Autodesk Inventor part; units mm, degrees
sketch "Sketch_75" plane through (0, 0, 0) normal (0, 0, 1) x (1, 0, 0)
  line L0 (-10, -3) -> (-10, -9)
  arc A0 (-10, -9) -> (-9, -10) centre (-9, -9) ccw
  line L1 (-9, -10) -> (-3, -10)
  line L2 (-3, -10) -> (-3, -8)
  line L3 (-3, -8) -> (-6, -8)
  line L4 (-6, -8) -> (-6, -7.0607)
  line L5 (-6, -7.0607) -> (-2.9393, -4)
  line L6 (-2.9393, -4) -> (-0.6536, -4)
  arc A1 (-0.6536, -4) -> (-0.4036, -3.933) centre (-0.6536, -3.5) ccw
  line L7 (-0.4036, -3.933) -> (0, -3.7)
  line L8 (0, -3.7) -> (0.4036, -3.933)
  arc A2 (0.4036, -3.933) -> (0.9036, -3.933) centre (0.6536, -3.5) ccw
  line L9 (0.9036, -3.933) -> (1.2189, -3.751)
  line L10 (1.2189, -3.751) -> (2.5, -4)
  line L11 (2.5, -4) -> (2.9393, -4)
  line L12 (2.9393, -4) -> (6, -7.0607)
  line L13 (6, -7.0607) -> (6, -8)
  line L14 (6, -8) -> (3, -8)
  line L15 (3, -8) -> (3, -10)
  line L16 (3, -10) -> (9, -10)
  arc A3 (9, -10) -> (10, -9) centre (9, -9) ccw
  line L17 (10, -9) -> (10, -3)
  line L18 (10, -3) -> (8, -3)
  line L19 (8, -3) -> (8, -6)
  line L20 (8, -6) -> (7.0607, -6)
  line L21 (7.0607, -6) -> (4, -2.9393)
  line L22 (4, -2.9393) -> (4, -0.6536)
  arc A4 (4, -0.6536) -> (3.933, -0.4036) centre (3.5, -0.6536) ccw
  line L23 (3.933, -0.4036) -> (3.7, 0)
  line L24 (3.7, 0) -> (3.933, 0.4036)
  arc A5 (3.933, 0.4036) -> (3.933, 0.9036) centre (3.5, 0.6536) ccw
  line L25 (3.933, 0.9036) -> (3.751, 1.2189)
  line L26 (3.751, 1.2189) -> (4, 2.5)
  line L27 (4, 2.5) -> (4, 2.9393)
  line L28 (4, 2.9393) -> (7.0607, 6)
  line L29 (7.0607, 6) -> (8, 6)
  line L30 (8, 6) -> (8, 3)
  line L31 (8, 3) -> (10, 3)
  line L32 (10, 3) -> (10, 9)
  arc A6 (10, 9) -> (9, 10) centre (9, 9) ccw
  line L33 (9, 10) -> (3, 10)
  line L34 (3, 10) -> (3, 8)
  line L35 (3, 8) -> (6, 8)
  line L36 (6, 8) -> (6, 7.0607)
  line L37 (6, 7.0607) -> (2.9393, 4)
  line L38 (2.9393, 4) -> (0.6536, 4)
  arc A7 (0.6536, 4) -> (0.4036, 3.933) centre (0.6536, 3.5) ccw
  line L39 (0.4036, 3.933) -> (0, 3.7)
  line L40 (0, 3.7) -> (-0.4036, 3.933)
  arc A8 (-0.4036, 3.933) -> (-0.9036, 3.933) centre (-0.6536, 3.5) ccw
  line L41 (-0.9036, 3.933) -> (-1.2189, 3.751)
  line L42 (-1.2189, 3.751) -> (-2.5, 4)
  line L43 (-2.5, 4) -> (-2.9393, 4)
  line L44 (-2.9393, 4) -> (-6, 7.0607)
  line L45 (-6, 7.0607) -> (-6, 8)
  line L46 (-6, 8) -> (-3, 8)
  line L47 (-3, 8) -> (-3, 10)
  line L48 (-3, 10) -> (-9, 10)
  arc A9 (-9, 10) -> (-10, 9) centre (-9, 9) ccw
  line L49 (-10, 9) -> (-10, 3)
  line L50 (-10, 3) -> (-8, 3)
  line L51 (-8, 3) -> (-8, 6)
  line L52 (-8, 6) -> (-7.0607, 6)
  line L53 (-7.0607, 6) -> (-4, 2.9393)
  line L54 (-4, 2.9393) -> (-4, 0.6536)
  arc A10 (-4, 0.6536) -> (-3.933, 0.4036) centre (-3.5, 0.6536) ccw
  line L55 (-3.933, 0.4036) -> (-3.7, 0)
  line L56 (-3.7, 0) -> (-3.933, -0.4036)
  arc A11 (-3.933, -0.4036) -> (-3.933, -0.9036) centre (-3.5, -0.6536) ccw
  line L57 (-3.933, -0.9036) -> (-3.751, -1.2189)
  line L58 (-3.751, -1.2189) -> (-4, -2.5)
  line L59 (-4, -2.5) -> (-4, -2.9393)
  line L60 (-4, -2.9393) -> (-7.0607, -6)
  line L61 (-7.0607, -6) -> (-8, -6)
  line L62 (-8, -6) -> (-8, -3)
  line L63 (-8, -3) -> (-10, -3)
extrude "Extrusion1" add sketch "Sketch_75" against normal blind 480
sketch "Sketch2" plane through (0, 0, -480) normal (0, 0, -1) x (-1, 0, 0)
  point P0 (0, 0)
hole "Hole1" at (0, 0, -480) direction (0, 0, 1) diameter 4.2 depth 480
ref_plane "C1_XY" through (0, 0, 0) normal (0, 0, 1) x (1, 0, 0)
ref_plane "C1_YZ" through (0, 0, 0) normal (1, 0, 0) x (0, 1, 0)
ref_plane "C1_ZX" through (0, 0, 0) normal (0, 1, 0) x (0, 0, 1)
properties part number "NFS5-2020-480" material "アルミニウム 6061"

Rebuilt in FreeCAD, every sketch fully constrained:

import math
import FreeCAD as App
import Part
import Sketcher
Q = App.Units.Quantity

doc = App.newDocument("Part")
body = doc.addObject("PartDesign::Body", "Body")

sketch1 = body.newObject("Sketcher::SketchObject", "Sketch")
sketch1.AttachmentSupport = (doc.getObject("XY_Plane"), [""])
sketch1.MapMode = "FlatFace"
sketch1.addGeometry([
    Part.LineSegment(App.Vector(-8, -3, 0), App.Vector(-10, -3, 0)),
    Part.LineSegment(App.Vector(-10, -3, 0), App.Vector(-10, -9, 0)),
    Part.ArcOfCircle(Part.Circle(App.Vector(-9, -9, 0), App.Vector(0, 0, 1), 1), math.radians(180), math.radians(270)),
    Part.LineSegment(App.Vector(-9, -10, 0), App.Vector(-3, -10, 0)),
    Part.LineSegment(App.Vector(-3, -10, 0), App.Vector(-3, -8, 0)),
    Part.LineSegment(App.Vector(-3, -8, 0), App.Vector(-6, -8, 0)),
    Part.LineSegment(App.Vector(-6, -8, 0), App.Vector(-6, -7.06, 0)),
    Part.LineSegment(App.Vector(-6, -7.06, 0), App.Vector(-2.94, -4, 0)),
    Part.LineSegment(App.Vector(-2.94, -4, 0), App.Vector(-0.65, -4, 0)),
    Part.ArcOfCircle(Part.Circle(App.Vector(-0.65, -3.5, 0), App.Vector(0, 0, 1), 0.5), math.radians(-90), math.radians(-60)),
    Part.LineSegment(App.Vector(-0.4, -3.93, 0), App.Vector(0, -3.7, 0)),
    Part.LineSegment(App.Vector(0, -3.7, 0), App.Vector(0.4, -3.93, 0)),
    Part.ArcOfCircle(Part.Circle(App.Vector(0.65, -3.5, 0), App.Vector(0, 0, 1), 0.5), math.radians(-120), math.radians(-60)),
    Part.LineSegment(App.Vector(0.9, -3.93, 0), App.Vector(1.22, -3.75, 0)),
    Part.LineSegment(App.Vector(1.22, -3.75, 0), App.Vector(2.5, -4, 0)),
    Part.LineSegment(App.Vector(2.5, -4, 0), App.Vector(2.94, -4, 0)),
    Part.LineSegment(App.Vector(2.94, -4, 0), App.Vector(6, -7.06, 0)),
    Part.LineSegment(App.Vector(6, -7.06, 0), App.Vector(6, -8, 0)),
    Part.LineSegment(App.Vector(6, -8, 0), App.Vector(3, -8, 0)),
    Part.LineSegment(App.Vector(3, -8, 0), App.Vector(3, -10, 0)),
    Part.LineSegment(App.Vector(3, -10, 0), App.Vector(9, -10, 0)),
    Part.ArcOfCircle(Part.Circle(App.Vector(9, -9, 0), App.Vector(0, 0, 1), 1), math.radians(-90), math.radians(0)),
    Part.LineSegment(App.Vector(10, -9, 0), App.Vector(10, -3, 0)),
    Part.LineSegment(App.Vector(10, -3, 0), App.Vector(8, -3, 0)),
    Part.LineSegment(App.Vector(8, -3, 0), App.Vector(8, -6, 0)),
    Part.LineSegment(App.Vector(8, -6, 0), App.Vector(7.06, -6, 0)),
    Part.LineSegment(App.Vector(7.06, -6, 0), App.Vector(4, -2.94, 0)),
    Part.LineSegment(App.Vector(4, -2.94, 0), App.Vector(4, -0.65, 0)),
    Part.ArcOfCircle(Part.Circle(App.Vector(3.5, -0.65, 0), App.Vector(0, 0, 1), 0.5), math.radians(0), math.radians(30)),
    Part.LineSegment(App.Vector(3.93, -0.4, 0), App.Vector(3.7, 0, 0)),
    Part.LineSegment(App.Vector(3.7, 0, 0), App.Vector(3.93, 0.4, 0)),
    Part.ArcOfCircle(Part.Circle(App.Vector(3.5, 0.65, 0), App.Vector(0, 0, 1), 0.5), math.radians(-30), math.radians(30)),
    Part.LineSegment(App.Vector(3.93, 0.9, 0), App.Vector(3.75, 1.22, 0)),
    Part.LineSegment(App.Vector(3.75, 1.22, 0), App.Vector(4, 2.5, 0)),
    Part.LineSegment(App.Vector(4, 2.5, 0), App.Vector(4, 2.94, 0)),
    Part.LineSegment(App.Vector(4, 2.94, 0), App.Vector(7.06, 6, 0)),
    Part.LineSegment(App.Vector(7.06, 6, 0), App.Vector(8, 6, 0)),
    Part.LineSegment(App.Vector(8, 6, 0), App.Vector(8, 3, 0)),
    Part.LineSegment(App.Vector(8, 3, 0), App.Vector(10, 3, 0)),
    Part.LineSegment(App.Vector(10, 3, 0), App.Vector(10, 9, 0)),
    Part.ArcOfCircle(Part.Circle(App.Vector(9, 9, 0), App.Vector(0, 0, 1), 1), math.radians(0), math.radians(90)),
    Part.LineSegment(App.Vector(9, 10, 0), App.Vector(3, 10, 0)),
    Part.LineSegment(App.Vector(3, 10, 0), App.Vector(3, 8, 0)),
    Part.LineSegment(App.Vector(3, 8, 0), App.Vector(6, 8, 0)),
    Part.LineSegment(App.Vector(6, 8, 0), App.Vector(6, 7.06, 0)),
    Part.LineSegment(App.Vector(6, 7.06, 0), App.Vector(2.94, 4, 0)),
    Part.LineSegment(App.Vector(2.94, 4, 0), App.Vector(0.65, 4, 0)),
    Part.ArcOfCircle(Part.Circle(App.Vector(0.65, 3.5, 0), App.Vector(0, 0, 1), 0.5), math.radians(90), math.radians(120)),
    Part.LineSegment(App.Vector(0.4, 3.93, 0), App.Vector(0, 3.7, 0)),
    Part.LineSegment(App.Vector(0, 3.7, 0), App.Vector(-0.4, 3.93, 0)),
    Part.ArcOfCircle(Part.Circle(App.Vector(-0.65, 3.5, 0), App.Vector(0, 0, 1), 0.5), math.radians(60), math.radians(120)),
    Part.LineSegment(App.Vector(-0.9, 3.93, 0), App.Vector(-1.22, 3.75, 0)),
    Part.LineSegment(App.Vector(-1.22, 3.75, 0), App.Vector(-2.5, 4, 0)),
    Part.LineSegment(App.Vector(-2.5, 4, 0), App.Vector(-2.94, 4, 0)),
    Part.LineSegment(App.Vector(-2.94, 4, 0), App.Vector(-6, 7.06, 0)),
    Part.LineSegment(App.Vector(-6, 7.06, 0), App.Vector(-6, 8, 0)),
    Part.LineSegment(App.Vector(-6, 8, 0), App.Vector(-3, 8, 0)),
    Part.LineSegment(App.Vector(-3, 8, 0), App.Vector(-3, 10, 0)),
    Part.LineSegment(App.Vector(-3, 10, 0), App.Vector(-9, 10, 0)),
    Part.ArcOfCircle(Part.Circle(App.Vector(-9, 9, 0), App.Vector(0, 0, 1), 1), math.radians(90), math.radians(180)),
    Part.LineSegment(App.Vector(-10, 9, 0), App.Vector(-10, 3, 0)),
    Part.LineSegment(App.Vector(-10, 3, 0), App.Vector(-8, 3, 0)),
    Part.LineSegment(App.Vector(-8, 3, 0), App.Vector(-8, 6, 0)),
    Part.LineSegment(App.Vector(-8, 6, 0), App.Vector(-7.06, 6, 0)),
    Part.LineSegment(App.Vector(-7.06, 6, 0), App.Vector(-4, 2.94, 0)),
    Part.LineSegment(App.Vector(-4, 2.94, 0), App.Vector(-4, 0.65, 0)),
    Part.ArcOfCircle(Part.Circle(App.Vector(-3.5, 0.65, 0), App.Vector(0, 0, 1), 0.5), math.radians(180), math.radians(210)),
    Part.LineSegment(App.Vector(-3.93, 0.4, 0), App.Vector(-3.7, 0, 0)),
    Part.LineSegment(App.Vector(-3.7, 0, 0), App.Vector(-3.93, -0.4, 0)),
    Part.ArcOfCircle(Part.Circle(App.Vector(-3.5, -0.65, 0), App.Vector(0, 0, 1), 0.5), math.radians(150), math.radians(210)),
    Part.LineSegment(App.Vector(-3.93, -0.9, 0), App.Vector(-3.75, -1.22, 0)),
    Part.LineSegment(App.Vector(-3.75, -1.22, 0), App.Vector(-4, -2.5, 0)),
    Part.LineSegment(App.Vector(-4, -2.5, 0), App.Vector(-4, -2.94, 0)),
    Part.LineSegment(App.Vector(-4, -2.94, 0), App.Vector(-7.06, -6, 0)),
    Part.LineSegment(App.Vector(-7.06, -6, 0), App.Vector(-8, -6, 0)),
    Part.LineSegment(App.Vector(-8, -6, 0), App.Vector(-8, -3, 0)),
], False)
sketch1.addConstraint([
    Sketcher.Constraint("Coincident", 0, 2, 1, 1),
    Sketcher.Constraint("Tangent", 1, 2, 2, 1),
    Sketcher.Constraint("Tangent", 2, 2, 3, 1),
    Sketcher.Constraint("Coincident", 3, 2, 4, 1),
    Sketcher.Constraint("Coincident", 4, 2, 5, 1),
    Sketcher.Constraint("Coincident", 5, 2, 6, 1),
    Sketcher.Constraint("Coincident", 6, 2, 7, 1),
    Sketcher.Constraint("Coincident", 7, 2, 8, 1),
    Sketcher.Constraint("Tangent", 8, 2, 9, 1),
    Sketcher.Constraint("Tangent", 9, 2, 10, 1),
    Sketcher.Constraint("Coincident", 10, 2, 11, 1),
    Sketcher.Constraint("Tangent", 11, 2, 12, 1),
    Sketcher.Constraint("Tangent", 12, 2, 13, 1),
    Sketcher.Constraint("Coincident", 13, 2, 14, 1),
    Sketcher.Constraint("Coincident", 14, 2, 15, 1),
    Sketcher.Constraint("Coincident", 15, 2, 16, 1),
    Sketcher.Constraint("Coincident", 16, 2, 17, 1),
    Sketcher.Constraint("Coincident", 17, 2, 18, 1),
    Sketcher.Constraint("Coincident", 18, 2, 19, 1),
    Sketcher.Constraint("Coincident", 19, 2, 20, 1),
    Sketcher.Constraint("Tangent", 20, 2, 21, 1),
    Sketcher.Constraint("Tangent", 21, 2, 22, 1),
    Sketcher.Constraint("Coincident", 22, 2, 23, 1),
    Sketcher.Constraint("Coincident", 23, 2, 24, 1),
    Sketcher.Constraint("Coincident", 24, 2, 25, 1),
    Sketcher.Constraint("Coincident", 25, 2, 26, 1),
    Sketcher.Constraint("Coincident", 26, 2, 27, 1),
    Sketcher.Constraint("Tangent", 27, 2, 28, 1),
    Sketcher.Constraint("Tangent", 28, 2, 29, 1),
    Sketcher.Constraint("Coincident", 29, 2, 30, 1),
    Sketcher.Constraint("Tangent", 30, 2, 31, 1),
    Sketcher.Constraint("Tangent", 31, 2, 32, 1),
    Sketcher.Constraint("Coincident", 32, 2, 33, 1),
    Sketcher.Constraint("Coincident", 33, 2, 34, 1),
    Sketcher.Constraint("Coincident", 34, 2, 35, 1),
    Sketcher.Constraint("Coincident", 35, 2, 36, 1),
    Sketcher.Constraint("Coincident", 36, 2, 37, 1),
    Sketcher.Constraint("Coincident", 37, 2, 38, 1),
    Sketcher.Constraint("Coincident", 38, 2, 39, 1),
    Sketcher.Constraint("Tangent", 39, 2, 40, 1),
    Sketcher.Constraint("Tangent", 40, 2, 41, 1),
    Sketcher.Constraint("Coincident", 41, 2, 42, 1),
    Sketcher.Constraint("Coincident", 42, 2, 43, 1),
    Sketcher.Constraint("Coincident", 43, 2, 44, 1),
    Sketcher.Constraint("Coincident", 44, 2, 45, 1),
    Sketcher.Constraint("Coincident", 45, 2, 46, 1),
    Sketcher.Constraint("Tangent", 46, 2, 47, 1),
    Sketcher.Constraint("Tangent", 47, 2, 48, 1),
    Sketcher.Constraint("Coincident", 48, 2, 49, 1),
    Sketcher.Constraint("Tangent", 49, 2, 50, 1),
    Sketcher.Constraint("Tangent", 50, 2, 51, 1),
    Sketcher.Constraint("Coincident", 51, 2, 52, 1),
    Sketcher.Constraint("Coincident", 52, 2, 53, 1),
    Sketcher.Constraint("Coincident", 53, 2, 54, 1),
    Sketcher.Constraint("Coincident", 54, 2, 55, 1),
    Sketcher.Constraint("Coincident", 55, 2, 56, 1),
    Sketcher.Constraint("Coincident", 56, 2, 57, 1),
    Sketcher.Constraint("Coincident", 57, 2, 58, 1),
    Sketcher.Constraint("Tangent", 58, 2, 59, 1),
    Sketcher.Constraint("Tangent", 59, 2, 60, 1),
    Sketcher.Constraint("Coincident", 60, 2, 61, 1),
    Sketcher.Constraint("Coincident", 61, 2, 62, 1),
    Sketcher.Constraint("Coincident", 62, 2, 63, 1),
    Sketcher.Constraint("Coincident", 63, 2, 64, 1),
    Sketcher.Constraint("Coincident", 64, 2, 65, 1),
    Sketcher.Constraint("Tangent", 65, 2, 66, 1),
    Sketcher.Constraint("Tangent", 66, 2, 67, 1),
    Sketcher.Constraint("Coincident", 67, 2, 68, 1),
    Sketcher.Constraint("Tangent", 68, 2, 69, 1),
    Sketcher.Constraint("Tangent", 69, 2, 70, 1),
    Sketcher.Constraint("Coincident", 70, 2, 71, 1),
    Sketcher.Constraint("Coincident", 71, 2, 72, 1),
    Sketcher.Constraint("Coincident", 72, 2, 73, 1),
    Sketcher.Constraint("Coincident", 73, 2, 74, 1),
    Sketcher.Constraint("Coincident", 74, 2, 75, 1),
    Sketcher.Constraint("Coincident", 75, 2, 0, 1),
    Sketcher.Constraint("Horizontal", 0),
    Sketcher.Constraint("Vertical", 1),
    Sketcher.Constraint("Horizontal", 3),
    Sketcher.Constraint("Vertical", 4),
    Sketcher.Constraint("Horizontal", 5),
    Sketcher.Constraint("Vertical", 6),
    Sketcher.Constraint("Horizontal", 8),
    Sketcher.Constraint("Horizontal", 15),
    Sketcher.Constraint("Vertical", 17),
    Sketcher.Constraint("Horizontal", 18),
    Sketcher.Constraint("Vertical", 19),
    Sketcher.Constraint("Horizontal", 20),
    Sketcher.Constraint("Vertical", 22),
    Sketcher.Constraint("Horizontal", 23),
    Sketcher.Constraint("Vertical", 24),
    Sketcher.Constraint("Horizontal", 25),
    Sketcher.Constraint("Vertical", 27),
    Sketcher.Constraint("Vertical", 34),
    Sketcher.Constraint("Horizontal", 36),
    Sketcher.Constraint("Vertical", 37),
    Sketcher.Constraint("Horizontal", 38),
    Sketcher.Constraint("Vertical", 39),
    Sketcher.Constraint("Horizontal", 41),
    Sketcher.Constraint("Vertical", 42),
    Sketcher.Constraint("Horizontal", 43),
    Sketcher.Constraint("Vertical", 44),
    Sketcher.Constraint("Horizontal", 46),
    Sketcher.Constraint("Horizontal", 53),
    Sketcher.Constraint("Vertical", 55),
    Sketcher.Constraint("Horizontal", 56),
    Sketcher.Constraint("Vertical", 57),
    Sketcher.Constraint("Horizontal", 58),
    Sketcher.Constraint("Vertical", 60),
    Sketcher.Constraint("Horizontal", 61),
    Sketcher.Constraint("Vertical", 62),
    Sketcher.Constraint("Horizontal", 63),
    Sketcher.Constraint("Vertical", 65),
    Sketcher.Constraint("Vertical", 72),
    Sketcher.Constraint("Horizontal", 74),
    Sketcher.Constraint("Vertical", 75),
    Sketcher.Constraint("Equal", 9, 12),
    Sketcher.Constraint("Equal", 2, 21),
    Sketcher.Constraint("Equal", 12, 28),
    Sketcher.Constraint("Equal", 28, 31),
    Sketcher.Constraint("Equal", 21, 40),
    Sketcher.Constraint("Equal", 31, 47),
    Sketcher.Constraint("Equal", 47, 50),
    Sketcher.Constraint("Equal", 40, 59),
    Sketcher.Constraint("Equal", 50, 66),
    Sketcher.Constraint("Equal", 66, 69),
    Sketcher.Constraint("Symmetric", 2, 3, 40, 3, -1, 1),
    Sketcher.Constraint("Symmetric", 9, 3, 47, 3, -1, 1),
    Sketcher.Constraint("Symmetric", 12, 3, 50, 3, -1, 1),
    Sketcher.Constraint("Symmetric", 21, 3, 59, 3, -1, 1),
    Sketcher.Constraint("Symmetric", 28, 3, 66, 3, -1, 1),
    Sketcher.Constraint("Symmetric", 31, 3, 69, 3, -1, 1),
    Sketcher.Constraint("Symmetric", 4, 2, 42, 2, -1, 1),
    Sketcher.Constraint("Symmetric", 6, 2, 44, 2, -1, 1),
    Sketcher.Constraint("Symmetric", 10, 2, 48, 2, -1, 1),
    Sketcher.Constraint("Symmetric", 13, 2, 51, 2, -1, 1),
    Sketcher.Constraint("Symmetric", 14, 2, 52, 2, -1, 1),
    Sketcher.Constraint("Symmetric", 16, 2, 54, 2, -1, 1),
    Sketcher.Constraint("Symmetric", 18, 2, 56, 2, -1, 1),
    Sketcher.Constraint("Symmetric", 23, 2, 61, 2, -1, 1),
    Sketcher.Constraint("Symmetric", 25, 2, 63, 2, -1, 1),
    Sketcher.Constraint("Symmetric", 29, 2, 67, 2, -1, 1),
    Sketcher.Constraint("Symmetric", 32, 2, 70, 2, -1, 1),
    Sketcher.Constraint("Symmetric", 33, 2, 71, 2, -1, 1),
    Sketcher.Constraint("Symmetric", 35, 2, 73, 2, -1, 1),
    Sketcher.Constraint("Symmetric", 37, 2, 75, 2, -1, 1),
    Sketcher.Constraint("Symmetric", 9, 3, 12, 3, -2),
    Sketcher.Constraint("Symmetric", 2, 3, 21, 3, -2),
    Sketcher.Constraint("Symmetric", 31, 3, 66, 3, -2),
    Sketcher.Constraint("Symmetric", 7, 2, 15, 2, -2),
    Sketcher.Constraint("Symmetric", 6, 2, 16, 2, -2),
    Sketcher.Constraint("Symmetric", 4, 2, 18, 2, -2),
    Sketcher.Constraint("Symmetric", 37, 2, 61, 2, -2),
    Sketcher.Constraint("Symmetric", 35, 2, 63, 2, -2),
    Sketcher.Constraint("Symmetric", 34, 2, 64, 2, -2),
    Sketcher.Constraint("PointOnObject", 10, 2, -2),
    Sketcher.Constraint("PointOnObject", 29, 2, -1),
    Sketcher.Constraint("Parallel", 10, 13),
    Sketcher.Constraint("Perpendicular", 7, 16),
    Sketcher.Constraint("Parallel", 16, 26),
    Sketcher.Constraint("Perpendicular", 13, 29),
    Sketcher.Constraint("Parallel", 29, 32),
    Sketcher.Constraint("Perpendicular", 14, 33),
    Sketcher.Constraint("Perpendicular", 26, 35),
    Sketcher.Constraint("Parallel", 35, 45),
    Sketcher.Constraint("Perpendicular", 45, 54),
    Sketcher.Constraint("Perpendicular", 64, 73),
    Sketcher.Constraint("Equal", 58, 1),
    Sketcher.Constraint("Equal", 61, 4),
    Sketcher.Constraint("Equal", 74, 6),
    Sketcher.Constraint("Equal", 56, 24),
    Sketcher.Constraint("Equal", 46, 27),
    Sketcher.Constraint("Equal", 53, 34),
    Sketcher.Constraint("Equal", 16, 26),
    Sketcher.Constraint("Equal", 11, 29),
    Sketcher.Constraint("Radius", 2, Q("1 mm")),
    Sketcher.Constraint("Radius", 9, Q("0.5 mm")),
    Sketcher.Constraint("DistanceX", 0, 2, 0, 1, Q("2 mm")),
    Sketcher.Constraint("DistanceX", 3, 1, 3, 2, Q("6 mm")),
    Sketcher.Constraint("DistanceX", 5, 2, 5, 1, Q("3 mm")),
    Sketcher.Constraint("Angle", 14, Q("-10.999 deg")),
    Sketcher.Constraint("DistanceX", 2, 3, -1, 1, Q("9 mm")),
    Sketcher.Constraint("DistanceY", 7, 2, -1, 1, Q("4 mm")),
    Sketcher.Constraint("DistanceY", 10, 2, -1, 1, Q("3.7 mm")),
    Sketcher.Constraint("DistanceX", -1, 1, 14, 2, Q("2.5 mm")),
    Sketcher.Constraint("Distance", 10, Q("0.466 mm")),
    Sketcher.Constraint("DistanceX", 8, 1, 8, 2, Q("2.2857 mm")),
])
pad1 = body.newObject("PartDesign::Pad", "Pad")
pad1.Profile = sketch1
pad1.Length = 480
pad1.Reversed = True

sketch2 = body.newObject("Sketcher::SketchObject", "Sketch001")
sketch2.AttachmentSupport = (doc.getObject("XY_Plane"), [""])
sketch2.MapMode = "FlatFace"
sketch2.AttachmentOffset = App.Placement(App.Vector(0, 0, -480), App.Rotation())
sketch2.addGeometry(Part.Circle(App.Vector(0, 0, 0), App.Vector(0, 0, 1), 2.1), False)
sketch2.addConstraint([
    Sketcher.Constraint("Coincident", 0, 3, -1, 1),
    Sketcher.Constraint("Diameter", 0, Q("4.2 mm")),
])
doc.recompute()
hole = body.newObject("PartDesign::Hole", "Hole")
hole.Profile = sketch2
hole.ThreadType = "None"
hole.Diameter = 4.2
hole.DepthType = "Dimension"
hole.Depth = 480
hole.DrillPoint = "Flat"
hole.Reversed = True

doc.recompute()
